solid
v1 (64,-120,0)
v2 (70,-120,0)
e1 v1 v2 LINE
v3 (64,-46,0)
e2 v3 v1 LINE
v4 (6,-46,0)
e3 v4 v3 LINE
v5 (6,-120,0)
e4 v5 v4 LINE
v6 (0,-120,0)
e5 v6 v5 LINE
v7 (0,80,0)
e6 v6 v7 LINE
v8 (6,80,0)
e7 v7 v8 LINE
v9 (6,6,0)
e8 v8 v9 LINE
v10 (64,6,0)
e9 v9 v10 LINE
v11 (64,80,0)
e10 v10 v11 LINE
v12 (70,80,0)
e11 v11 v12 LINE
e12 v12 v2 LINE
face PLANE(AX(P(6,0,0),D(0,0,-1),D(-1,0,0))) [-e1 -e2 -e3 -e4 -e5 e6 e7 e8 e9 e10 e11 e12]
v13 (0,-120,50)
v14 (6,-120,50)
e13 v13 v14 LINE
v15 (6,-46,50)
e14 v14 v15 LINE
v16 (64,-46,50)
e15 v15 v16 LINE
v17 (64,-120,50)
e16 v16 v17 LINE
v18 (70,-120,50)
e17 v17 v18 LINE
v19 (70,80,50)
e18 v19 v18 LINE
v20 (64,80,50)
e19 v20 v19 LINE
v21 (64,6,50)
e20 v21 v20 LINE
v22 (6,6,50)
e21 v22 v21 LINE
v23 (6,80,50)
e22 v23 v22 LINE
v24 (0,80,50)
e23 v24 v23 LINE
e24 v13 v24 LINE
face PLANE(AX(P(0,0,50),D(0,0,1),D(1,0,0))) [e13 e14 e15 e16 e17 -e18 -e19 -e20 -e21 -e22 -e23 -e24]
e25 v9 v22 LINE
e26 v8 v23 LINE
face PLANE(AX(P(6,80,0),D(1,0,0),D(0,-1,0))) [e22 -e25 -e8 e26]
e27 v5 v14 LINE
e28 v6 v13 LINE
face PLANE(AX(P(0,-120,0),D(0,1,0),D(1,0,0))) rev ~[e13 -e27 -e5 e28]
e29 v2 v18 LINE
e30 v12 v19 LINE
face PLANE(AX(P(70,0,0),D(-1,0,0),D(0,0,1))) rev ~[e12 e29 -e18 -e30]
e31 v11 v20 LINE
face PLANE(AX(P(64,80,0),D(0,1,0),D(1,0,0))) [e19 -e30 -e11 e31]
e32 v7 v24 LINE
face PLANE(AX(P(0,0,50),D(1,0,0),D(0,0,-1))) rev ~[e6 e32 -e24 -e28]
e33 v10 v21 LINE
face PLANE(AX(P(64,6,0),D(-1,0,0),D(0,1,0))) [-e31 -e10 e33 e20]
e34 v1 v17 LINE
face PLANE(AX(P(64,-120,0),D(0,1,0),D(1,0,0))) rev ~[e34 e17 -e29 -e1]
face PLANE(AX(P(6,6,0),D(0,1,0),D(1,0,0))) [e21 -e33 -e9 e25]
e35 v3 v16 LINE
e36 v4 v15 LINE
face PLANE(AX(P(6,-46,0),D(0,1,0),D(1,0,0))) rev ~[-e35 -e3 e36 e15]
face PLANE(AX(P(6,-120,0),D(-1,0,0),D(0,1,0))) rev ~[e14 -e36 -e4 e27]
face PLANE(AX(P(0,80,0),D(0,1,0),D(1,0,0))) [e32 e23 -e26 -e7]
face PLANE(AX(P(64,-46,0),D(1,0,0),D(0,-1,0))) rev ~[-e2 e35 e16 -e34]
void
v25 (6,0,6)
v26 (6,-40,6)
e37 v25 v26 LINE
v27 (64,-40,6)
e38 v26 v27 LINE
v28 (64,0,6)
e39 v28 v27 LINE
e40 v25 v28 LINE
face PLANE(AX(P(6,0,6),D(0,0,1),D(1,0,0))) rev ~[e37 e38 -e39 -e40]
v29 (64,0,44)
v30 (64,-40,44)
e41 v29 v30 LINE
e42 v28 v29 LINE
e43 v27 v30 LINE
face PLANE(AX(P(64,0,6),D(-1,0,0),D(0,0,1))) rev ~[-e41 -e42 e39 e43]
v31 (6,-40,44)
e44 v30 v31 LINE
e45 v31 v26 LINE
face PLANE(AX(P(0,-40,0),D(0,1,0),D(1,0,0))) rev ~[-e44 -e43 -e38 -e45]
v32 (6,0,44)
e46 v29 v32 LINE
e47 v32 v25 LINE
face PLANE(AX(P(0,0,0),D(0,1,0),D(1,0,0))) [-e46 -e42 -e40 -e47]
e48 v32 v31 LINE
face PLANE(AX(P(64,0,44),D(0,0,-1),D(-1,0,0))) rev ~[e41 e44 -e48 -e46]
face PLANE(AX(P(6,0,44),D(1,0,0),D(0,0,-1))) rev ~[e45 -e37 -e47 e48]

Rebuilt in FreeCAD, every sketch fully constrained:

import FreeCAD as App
import Part
import Sketcher

V = App.Vector
Q = App.Units.Quantity

doc = App.newDocument("Part")
params = doc.addObject("Spreadsheet::Sheet", "Params")
for row, (alias, value) in enumerate([
    ("sketch1_width", "6 mm"),
    ("sketch1_width2", "70 mm"),
    ("sketch1_height", "80 mm"),
    ("pad1_length", "50 mm"),
    ("sketch2_width", "70 mm"),
    ("sketch2_height", "50 mm"),
    ("pad2_length", "40 mm"),
], start=1):
    params.set(f"A{row}", alias)
    params.set(f"B{row}", "=" + value)
    params.setAlias(f"B{row}", alias)

body = doc.addObject("PartDesign::Body", "Body")
body.AllowCompound = True

# Sketch on XY plane
sketch1 = doc.addObject("Sketcher::SketchObject", "Sketch")
body.addObject(sketch1)
sketch1.AttachmentSupport = (doc.XY_Plane, [""])
sketch1.MapMode = "FlatFace"
sketch1.addGeometry(Part.LineSegment(V(6, 80, 0), V(0, 80, 0)), False)
sketch1.addGeometry(Part.LineSegment(V(0, 80, 0), V(0, 0, 0)), False)
sketch1.addGeometry(Part.LineSegment(V(0, 0, 0), V(70, 0, 0)), False)
sketch1.addGeometry(Part.LineSegment(V(70, 0, 0), V(70, 80, 0)), False)
sketch1.addGeometry(Part.LineSegment(V(70, 80, 0), V(64, 80, 0)), False)
sketch1.addGeometry(Part.LineSegment(V(64, 80, 0), V(64, 6, 0)), False)
sketch1.addGeometry(Part.LineSegment(V(64, 6, 0), V(6, 6, 0)), False)
sketch1.addGeometry(Part.LineSegment(V(6, 6, 0), V(6, 80, 0)), False)
sketch1.addGeometry(Part.LineSegment(V(0, -40, 0), V(0, -120, 0)), False)
sketch1.addGeometry(Part.LineSegment(V(0, -120, 0), V(6, -120, 0)), False)
sketch1.addGeometry(Part.LineSegment(V(6, -120, 0), V(6, -46, 0)), False)
sketch1.addGeometry(Part.LineSegment(V(6, -46, 0), V(64, -46, 0)), False)
sketch1.addGeometry(Part.LineSegment(V(64, -46, 0), V(64, -120, 0)), False)
sketch1.addGeometry(Part.LineSegment(V(64, -120, 0), V(70, -120, 0)), False)
sketch1.addGeometry(Part.LineSegment(V(70, -120, 0), V(70, -40, 0)), False)
sketch1.addGeometry(Part.LineSegment(V(70, -40, 0), V(0, -40, 0)), False)
sketch1.addConstraint(Sketcher.Constraint("Coincident", 0, 2, 1, 1))
sketch1.addConstraint(Sketcher.Constraint("Coincident", 1, 2, 2, 1))
sketch1.addConstraint(Sketcher.Constraint("Coincident", 2, 2, 3, 1))
sketch1.addConstraint(Sketcher.Constraint("Coincident", 3, 2, 4, 1))
sketch1.addConstraint(Sketcher.Constraint("Coincident", 4, 2, 5, 1))
sketch1.addConstraint(Sketcher.Constraint("Coincident", 5, 2, 6, 1))
sketch1.addConstraint(Sketcher.Constraint("Coincident", 6, 2, 7, 1))
sketch1.addConstraint(Sketcher.Constraint("Coincident", 7, 2, 0, 1))
sketch1.addConstraint(Sketcher.Constraint("Coincident", 8, 2, 9, 1))
sketch1.addConstraint(Sketcher.Constraint("Coincident", 9, 2, 10, 1))
sketch1.addConstraint(Sketcher.Constraint("Coincident", 10, 2, 11, 1))
sketch1.addConstraint(Sketcher.Constraint("Coincident", 11, 2, 12, 1))
sketch1.addConstraint(Sketcher.Constraint("Coincident", 12, 2, 13, 1))
sketch1.addConstraint(Sketcher.Constraint("Coincident", 13, 2, 14, 1))
sketch1.addConstraint(Sketcher.Constraint("Coincident", 14, 2, 15, 1))
sketch1.addConstraint(Sketcher.Constraint("Coincident", 15, 2, 8, 1))
sketch1.addConstraint(Sketcher.Constraint("Horizontal", 0))
sketch1.addConstraint(Sketcher.Constraint("Vertical", 1))
sketch1.addConstraint(Sketcher.Constraint("Horizontal", 2))
sketch1.addConstraint(Sketcher.Constraint("Vertical", 3))
sketch1.addConstraint(Sketcher.Constraint("Horizontal", 4))
sketch1.addConstraint(Sketcher.Constraint("Vertical", 5))
sketch1.addConstraint(Sketcher.Constraint("Horizontal", 6))
sketch1.addConstraint(Sketcher.Constraint("Vertical", 7))
sketch1.addConstraint(Sketcher.Constraint("Vertical", 8))
sketch1.addConstraint(Sketcher.Constraint("Horizontal", 9))
sketch1.addConstraint(Sketcher.Constraint("Vertical", 10))
sketch1.addConstraint(Sketcher.Constraint("Horizontal", 11))
sketch1.addConstraint(Sketcher.Constraint("Vertical", 12))
sketch1.addConstraint(Sketcher.Constraint("Horizontal", 13))
sketch1.addConstraint(Sketcher.Constraint("Vertical", 14))
sketch1.addConstraint(Sketcher.Constraint("Horizontal", 15))
sketch1.addConstraint(Sketcher.Constraint("Coincident", 1, 2, -1, 1))
sketch1.addConstraint(Sketcher.Constraint("PointOnObject", 8, 2, -2))
sketch1.addConstraint(Sketcher.Constraint("Horizontal", 0, 2, 3, 2))
sketch1.addConstraint(Sketcher.Constraint("Horizontal", 9, 2, 12, 2))
sketch1.addConstraint(Sketcher.Constraint("Vertical", 7, 2, 9, 2))
sketch1.addConstraint(Sketcher.Constraint("Vertical", 5, 2, 11, 2))
sketch1.addConstraint(Sketcher.Constraint("Vertical", 3, 2, 13, 2))
sketch1.addConstraint(Sketcher.Constraint("Equal", 0, 4))
sketch1.addConstraint(Sketcher.Constraint("Equal", 3, 8))
sketch1.addConstraint(Sketcher.Constraint("Equal", 7, 10))
sketch1.addConstraint(Sketcher.Constraint("DistanceX", 0, 2, 0, 1, Q("6 mm")))
sketch1.addConstraint(Sketcher.Constraint("DistanceX", 2, 1, 2, 2, Q("70 mm")))
sketch1.addConstraint(Sketcher.Constraint("DistanceY", 1, 2, 1, 1, Q("80 mm")))
sketch1.addConstraint(Sketcher.Constraint("DistanceY", -1, 1, 5, 2, Q("6 mm")))
sketch1.addConstraint(Sketcher.Constraint("DistanceY", 8, 2, -1, 1, Q("120 mm")))
sketch1.setExpression("Constraints[42]", "Params.sketch1_width")
sketch1.setExpression("Constraints[43]", "Params.sketch1_width2")
sketch1.setExpression("Constraints[44]", "Params.sketch1_height")
pad1 = doc.addObject("PartDesign::Pad", "Pad")
body.addObject(pad1)
pad1.Profile = sketch1
pad1.setExpression("Length", "Params.pad1_length")

# Sketch on XZ plane
sketch2 = doc.addObject("Sketcher::SketchObject", "Sketch001")
body.addObject(sketch2)
sketch2.AttachmentSupport = (doc.XZ_Plane, [""])
sketch2.MapMode = "FlatFace"
sketch2.addGeometry(Part.LineSegment(V(0, 0, 0), V(70, 0, 0)), False)
sketch2.addGeometry(Part.LineSegment(V(70, 0, 0), V(70, 50, 0)), False)
sketch2.addGeometry(Part.LineSegment(V(70, 50, 0), V(0, 50, 0)), False)
sketch2.addGeometry(Part.LineSegment(V(0, 50, 0), V(0, 0, 0)), False)
sketch2.addGeometry(Part.LineSegment(V(64, 6, 0), V(6, 6, 0)), False)
sketch2.addGeometry(Part.LineSegment(V(6, 6, 0), V(6, 44, 0)), False)
sketch2.addGeometry(Part.LineSegment(V(6, 44, 0), V(64, 44, 0)), False)
sketch2.addGeometry(Part.LineSegment(V(64, 44, 0), V(64, 6, 0)), False)
sketch2.addConstraint(Sketcher.Constraint("Coincident", 0, 2, 1, 1))
sketch2.addConstraint(Sketcher.Constraint("Coincident", 1, 2, 2, 1))
sketch2.addConstraint(Sketcher.Constraint("Coincident", 2, 2, 3, 1))
sketch2.addConstraint(Sketcher.Constraint("Coincident", 3, 2, 0, 1))
sketch2.addConstraint(Sketcher.Constraint("Coincident", 4, 2, 5, 1))
sketch2.addConstraint(Sketcher.Constraint("Coincident", 5, 2, 6, 1))
sketch2.addConstraint(Sketcher.Constraint("Coincident", 6, 2, 7, 1))
sketch2.addConstraint(Sketcher.Constraint("Coincident", 7, 2, 4, 1))
sketch2.addConstraint(Sketcher.Constraint("Horizontal", 0))
sketch2.addConstraint(Sketcher.Constraint("Vertical", 1))
sketch2.addConstraint(Sketcher.Constraint("Horizontal", 2))
sketch2.addConstraint(Sketcher.Constraint("Vertical", 3))
sketch2.addConstraint(Sketcher.Constraint("Horizontal", 4))
sketch2.addConstraint(Sketcher.Constraint("Vertical", 5))
sketch2.addConstraint(Sketcher.Constraint("Horizontal", 6))
sketch2.addConstraint(Sketcher.Constraint("Vertical", 7))
sketch2.addConstraint(Sketcher.Constraint("Coincident", 3, 2, -1, 1))
sketch2.addConstraint(Sketcher.Constraint("DistanceX", -1, 1, 4, 2, Q("6 mm")))
sketch2.addConstraint(Sketcher.Constraint("DistanceY", -1, 1, 4, 2, Q("6 mm")))
sketch2.addConstraint(Sketcher.Constraint("DistanceY", 5, 2, 2, 2, Q("6 mm")))
sketch2.addConstraint(Sketcher.Constraint("DistanceX", 6, 2, 1, 2, Q("6 mm")))
sketch2.addConstraint(Sketcher.Constraint("DistanceX", 0, 1, 0, 2, Q("70 mm")))
sketch2.addConstraint(Sketcher.Constraint("DistanceY", 1, 1, 1, 2, Q("50 mm")))
sketch2.setExpression("Constraints[21]", "Params.sketch2_width")
sketch2.setExpression("Constraints[22]", "Params.sketch2_height")
pad2 = doc.addObject("PartDesign::Pad", "Pad001")
body.addObject(pad2)
pad2.Profile = sketch2
pad2.setExpression("Length", "Params.pad2_length")

doc.recompute()
